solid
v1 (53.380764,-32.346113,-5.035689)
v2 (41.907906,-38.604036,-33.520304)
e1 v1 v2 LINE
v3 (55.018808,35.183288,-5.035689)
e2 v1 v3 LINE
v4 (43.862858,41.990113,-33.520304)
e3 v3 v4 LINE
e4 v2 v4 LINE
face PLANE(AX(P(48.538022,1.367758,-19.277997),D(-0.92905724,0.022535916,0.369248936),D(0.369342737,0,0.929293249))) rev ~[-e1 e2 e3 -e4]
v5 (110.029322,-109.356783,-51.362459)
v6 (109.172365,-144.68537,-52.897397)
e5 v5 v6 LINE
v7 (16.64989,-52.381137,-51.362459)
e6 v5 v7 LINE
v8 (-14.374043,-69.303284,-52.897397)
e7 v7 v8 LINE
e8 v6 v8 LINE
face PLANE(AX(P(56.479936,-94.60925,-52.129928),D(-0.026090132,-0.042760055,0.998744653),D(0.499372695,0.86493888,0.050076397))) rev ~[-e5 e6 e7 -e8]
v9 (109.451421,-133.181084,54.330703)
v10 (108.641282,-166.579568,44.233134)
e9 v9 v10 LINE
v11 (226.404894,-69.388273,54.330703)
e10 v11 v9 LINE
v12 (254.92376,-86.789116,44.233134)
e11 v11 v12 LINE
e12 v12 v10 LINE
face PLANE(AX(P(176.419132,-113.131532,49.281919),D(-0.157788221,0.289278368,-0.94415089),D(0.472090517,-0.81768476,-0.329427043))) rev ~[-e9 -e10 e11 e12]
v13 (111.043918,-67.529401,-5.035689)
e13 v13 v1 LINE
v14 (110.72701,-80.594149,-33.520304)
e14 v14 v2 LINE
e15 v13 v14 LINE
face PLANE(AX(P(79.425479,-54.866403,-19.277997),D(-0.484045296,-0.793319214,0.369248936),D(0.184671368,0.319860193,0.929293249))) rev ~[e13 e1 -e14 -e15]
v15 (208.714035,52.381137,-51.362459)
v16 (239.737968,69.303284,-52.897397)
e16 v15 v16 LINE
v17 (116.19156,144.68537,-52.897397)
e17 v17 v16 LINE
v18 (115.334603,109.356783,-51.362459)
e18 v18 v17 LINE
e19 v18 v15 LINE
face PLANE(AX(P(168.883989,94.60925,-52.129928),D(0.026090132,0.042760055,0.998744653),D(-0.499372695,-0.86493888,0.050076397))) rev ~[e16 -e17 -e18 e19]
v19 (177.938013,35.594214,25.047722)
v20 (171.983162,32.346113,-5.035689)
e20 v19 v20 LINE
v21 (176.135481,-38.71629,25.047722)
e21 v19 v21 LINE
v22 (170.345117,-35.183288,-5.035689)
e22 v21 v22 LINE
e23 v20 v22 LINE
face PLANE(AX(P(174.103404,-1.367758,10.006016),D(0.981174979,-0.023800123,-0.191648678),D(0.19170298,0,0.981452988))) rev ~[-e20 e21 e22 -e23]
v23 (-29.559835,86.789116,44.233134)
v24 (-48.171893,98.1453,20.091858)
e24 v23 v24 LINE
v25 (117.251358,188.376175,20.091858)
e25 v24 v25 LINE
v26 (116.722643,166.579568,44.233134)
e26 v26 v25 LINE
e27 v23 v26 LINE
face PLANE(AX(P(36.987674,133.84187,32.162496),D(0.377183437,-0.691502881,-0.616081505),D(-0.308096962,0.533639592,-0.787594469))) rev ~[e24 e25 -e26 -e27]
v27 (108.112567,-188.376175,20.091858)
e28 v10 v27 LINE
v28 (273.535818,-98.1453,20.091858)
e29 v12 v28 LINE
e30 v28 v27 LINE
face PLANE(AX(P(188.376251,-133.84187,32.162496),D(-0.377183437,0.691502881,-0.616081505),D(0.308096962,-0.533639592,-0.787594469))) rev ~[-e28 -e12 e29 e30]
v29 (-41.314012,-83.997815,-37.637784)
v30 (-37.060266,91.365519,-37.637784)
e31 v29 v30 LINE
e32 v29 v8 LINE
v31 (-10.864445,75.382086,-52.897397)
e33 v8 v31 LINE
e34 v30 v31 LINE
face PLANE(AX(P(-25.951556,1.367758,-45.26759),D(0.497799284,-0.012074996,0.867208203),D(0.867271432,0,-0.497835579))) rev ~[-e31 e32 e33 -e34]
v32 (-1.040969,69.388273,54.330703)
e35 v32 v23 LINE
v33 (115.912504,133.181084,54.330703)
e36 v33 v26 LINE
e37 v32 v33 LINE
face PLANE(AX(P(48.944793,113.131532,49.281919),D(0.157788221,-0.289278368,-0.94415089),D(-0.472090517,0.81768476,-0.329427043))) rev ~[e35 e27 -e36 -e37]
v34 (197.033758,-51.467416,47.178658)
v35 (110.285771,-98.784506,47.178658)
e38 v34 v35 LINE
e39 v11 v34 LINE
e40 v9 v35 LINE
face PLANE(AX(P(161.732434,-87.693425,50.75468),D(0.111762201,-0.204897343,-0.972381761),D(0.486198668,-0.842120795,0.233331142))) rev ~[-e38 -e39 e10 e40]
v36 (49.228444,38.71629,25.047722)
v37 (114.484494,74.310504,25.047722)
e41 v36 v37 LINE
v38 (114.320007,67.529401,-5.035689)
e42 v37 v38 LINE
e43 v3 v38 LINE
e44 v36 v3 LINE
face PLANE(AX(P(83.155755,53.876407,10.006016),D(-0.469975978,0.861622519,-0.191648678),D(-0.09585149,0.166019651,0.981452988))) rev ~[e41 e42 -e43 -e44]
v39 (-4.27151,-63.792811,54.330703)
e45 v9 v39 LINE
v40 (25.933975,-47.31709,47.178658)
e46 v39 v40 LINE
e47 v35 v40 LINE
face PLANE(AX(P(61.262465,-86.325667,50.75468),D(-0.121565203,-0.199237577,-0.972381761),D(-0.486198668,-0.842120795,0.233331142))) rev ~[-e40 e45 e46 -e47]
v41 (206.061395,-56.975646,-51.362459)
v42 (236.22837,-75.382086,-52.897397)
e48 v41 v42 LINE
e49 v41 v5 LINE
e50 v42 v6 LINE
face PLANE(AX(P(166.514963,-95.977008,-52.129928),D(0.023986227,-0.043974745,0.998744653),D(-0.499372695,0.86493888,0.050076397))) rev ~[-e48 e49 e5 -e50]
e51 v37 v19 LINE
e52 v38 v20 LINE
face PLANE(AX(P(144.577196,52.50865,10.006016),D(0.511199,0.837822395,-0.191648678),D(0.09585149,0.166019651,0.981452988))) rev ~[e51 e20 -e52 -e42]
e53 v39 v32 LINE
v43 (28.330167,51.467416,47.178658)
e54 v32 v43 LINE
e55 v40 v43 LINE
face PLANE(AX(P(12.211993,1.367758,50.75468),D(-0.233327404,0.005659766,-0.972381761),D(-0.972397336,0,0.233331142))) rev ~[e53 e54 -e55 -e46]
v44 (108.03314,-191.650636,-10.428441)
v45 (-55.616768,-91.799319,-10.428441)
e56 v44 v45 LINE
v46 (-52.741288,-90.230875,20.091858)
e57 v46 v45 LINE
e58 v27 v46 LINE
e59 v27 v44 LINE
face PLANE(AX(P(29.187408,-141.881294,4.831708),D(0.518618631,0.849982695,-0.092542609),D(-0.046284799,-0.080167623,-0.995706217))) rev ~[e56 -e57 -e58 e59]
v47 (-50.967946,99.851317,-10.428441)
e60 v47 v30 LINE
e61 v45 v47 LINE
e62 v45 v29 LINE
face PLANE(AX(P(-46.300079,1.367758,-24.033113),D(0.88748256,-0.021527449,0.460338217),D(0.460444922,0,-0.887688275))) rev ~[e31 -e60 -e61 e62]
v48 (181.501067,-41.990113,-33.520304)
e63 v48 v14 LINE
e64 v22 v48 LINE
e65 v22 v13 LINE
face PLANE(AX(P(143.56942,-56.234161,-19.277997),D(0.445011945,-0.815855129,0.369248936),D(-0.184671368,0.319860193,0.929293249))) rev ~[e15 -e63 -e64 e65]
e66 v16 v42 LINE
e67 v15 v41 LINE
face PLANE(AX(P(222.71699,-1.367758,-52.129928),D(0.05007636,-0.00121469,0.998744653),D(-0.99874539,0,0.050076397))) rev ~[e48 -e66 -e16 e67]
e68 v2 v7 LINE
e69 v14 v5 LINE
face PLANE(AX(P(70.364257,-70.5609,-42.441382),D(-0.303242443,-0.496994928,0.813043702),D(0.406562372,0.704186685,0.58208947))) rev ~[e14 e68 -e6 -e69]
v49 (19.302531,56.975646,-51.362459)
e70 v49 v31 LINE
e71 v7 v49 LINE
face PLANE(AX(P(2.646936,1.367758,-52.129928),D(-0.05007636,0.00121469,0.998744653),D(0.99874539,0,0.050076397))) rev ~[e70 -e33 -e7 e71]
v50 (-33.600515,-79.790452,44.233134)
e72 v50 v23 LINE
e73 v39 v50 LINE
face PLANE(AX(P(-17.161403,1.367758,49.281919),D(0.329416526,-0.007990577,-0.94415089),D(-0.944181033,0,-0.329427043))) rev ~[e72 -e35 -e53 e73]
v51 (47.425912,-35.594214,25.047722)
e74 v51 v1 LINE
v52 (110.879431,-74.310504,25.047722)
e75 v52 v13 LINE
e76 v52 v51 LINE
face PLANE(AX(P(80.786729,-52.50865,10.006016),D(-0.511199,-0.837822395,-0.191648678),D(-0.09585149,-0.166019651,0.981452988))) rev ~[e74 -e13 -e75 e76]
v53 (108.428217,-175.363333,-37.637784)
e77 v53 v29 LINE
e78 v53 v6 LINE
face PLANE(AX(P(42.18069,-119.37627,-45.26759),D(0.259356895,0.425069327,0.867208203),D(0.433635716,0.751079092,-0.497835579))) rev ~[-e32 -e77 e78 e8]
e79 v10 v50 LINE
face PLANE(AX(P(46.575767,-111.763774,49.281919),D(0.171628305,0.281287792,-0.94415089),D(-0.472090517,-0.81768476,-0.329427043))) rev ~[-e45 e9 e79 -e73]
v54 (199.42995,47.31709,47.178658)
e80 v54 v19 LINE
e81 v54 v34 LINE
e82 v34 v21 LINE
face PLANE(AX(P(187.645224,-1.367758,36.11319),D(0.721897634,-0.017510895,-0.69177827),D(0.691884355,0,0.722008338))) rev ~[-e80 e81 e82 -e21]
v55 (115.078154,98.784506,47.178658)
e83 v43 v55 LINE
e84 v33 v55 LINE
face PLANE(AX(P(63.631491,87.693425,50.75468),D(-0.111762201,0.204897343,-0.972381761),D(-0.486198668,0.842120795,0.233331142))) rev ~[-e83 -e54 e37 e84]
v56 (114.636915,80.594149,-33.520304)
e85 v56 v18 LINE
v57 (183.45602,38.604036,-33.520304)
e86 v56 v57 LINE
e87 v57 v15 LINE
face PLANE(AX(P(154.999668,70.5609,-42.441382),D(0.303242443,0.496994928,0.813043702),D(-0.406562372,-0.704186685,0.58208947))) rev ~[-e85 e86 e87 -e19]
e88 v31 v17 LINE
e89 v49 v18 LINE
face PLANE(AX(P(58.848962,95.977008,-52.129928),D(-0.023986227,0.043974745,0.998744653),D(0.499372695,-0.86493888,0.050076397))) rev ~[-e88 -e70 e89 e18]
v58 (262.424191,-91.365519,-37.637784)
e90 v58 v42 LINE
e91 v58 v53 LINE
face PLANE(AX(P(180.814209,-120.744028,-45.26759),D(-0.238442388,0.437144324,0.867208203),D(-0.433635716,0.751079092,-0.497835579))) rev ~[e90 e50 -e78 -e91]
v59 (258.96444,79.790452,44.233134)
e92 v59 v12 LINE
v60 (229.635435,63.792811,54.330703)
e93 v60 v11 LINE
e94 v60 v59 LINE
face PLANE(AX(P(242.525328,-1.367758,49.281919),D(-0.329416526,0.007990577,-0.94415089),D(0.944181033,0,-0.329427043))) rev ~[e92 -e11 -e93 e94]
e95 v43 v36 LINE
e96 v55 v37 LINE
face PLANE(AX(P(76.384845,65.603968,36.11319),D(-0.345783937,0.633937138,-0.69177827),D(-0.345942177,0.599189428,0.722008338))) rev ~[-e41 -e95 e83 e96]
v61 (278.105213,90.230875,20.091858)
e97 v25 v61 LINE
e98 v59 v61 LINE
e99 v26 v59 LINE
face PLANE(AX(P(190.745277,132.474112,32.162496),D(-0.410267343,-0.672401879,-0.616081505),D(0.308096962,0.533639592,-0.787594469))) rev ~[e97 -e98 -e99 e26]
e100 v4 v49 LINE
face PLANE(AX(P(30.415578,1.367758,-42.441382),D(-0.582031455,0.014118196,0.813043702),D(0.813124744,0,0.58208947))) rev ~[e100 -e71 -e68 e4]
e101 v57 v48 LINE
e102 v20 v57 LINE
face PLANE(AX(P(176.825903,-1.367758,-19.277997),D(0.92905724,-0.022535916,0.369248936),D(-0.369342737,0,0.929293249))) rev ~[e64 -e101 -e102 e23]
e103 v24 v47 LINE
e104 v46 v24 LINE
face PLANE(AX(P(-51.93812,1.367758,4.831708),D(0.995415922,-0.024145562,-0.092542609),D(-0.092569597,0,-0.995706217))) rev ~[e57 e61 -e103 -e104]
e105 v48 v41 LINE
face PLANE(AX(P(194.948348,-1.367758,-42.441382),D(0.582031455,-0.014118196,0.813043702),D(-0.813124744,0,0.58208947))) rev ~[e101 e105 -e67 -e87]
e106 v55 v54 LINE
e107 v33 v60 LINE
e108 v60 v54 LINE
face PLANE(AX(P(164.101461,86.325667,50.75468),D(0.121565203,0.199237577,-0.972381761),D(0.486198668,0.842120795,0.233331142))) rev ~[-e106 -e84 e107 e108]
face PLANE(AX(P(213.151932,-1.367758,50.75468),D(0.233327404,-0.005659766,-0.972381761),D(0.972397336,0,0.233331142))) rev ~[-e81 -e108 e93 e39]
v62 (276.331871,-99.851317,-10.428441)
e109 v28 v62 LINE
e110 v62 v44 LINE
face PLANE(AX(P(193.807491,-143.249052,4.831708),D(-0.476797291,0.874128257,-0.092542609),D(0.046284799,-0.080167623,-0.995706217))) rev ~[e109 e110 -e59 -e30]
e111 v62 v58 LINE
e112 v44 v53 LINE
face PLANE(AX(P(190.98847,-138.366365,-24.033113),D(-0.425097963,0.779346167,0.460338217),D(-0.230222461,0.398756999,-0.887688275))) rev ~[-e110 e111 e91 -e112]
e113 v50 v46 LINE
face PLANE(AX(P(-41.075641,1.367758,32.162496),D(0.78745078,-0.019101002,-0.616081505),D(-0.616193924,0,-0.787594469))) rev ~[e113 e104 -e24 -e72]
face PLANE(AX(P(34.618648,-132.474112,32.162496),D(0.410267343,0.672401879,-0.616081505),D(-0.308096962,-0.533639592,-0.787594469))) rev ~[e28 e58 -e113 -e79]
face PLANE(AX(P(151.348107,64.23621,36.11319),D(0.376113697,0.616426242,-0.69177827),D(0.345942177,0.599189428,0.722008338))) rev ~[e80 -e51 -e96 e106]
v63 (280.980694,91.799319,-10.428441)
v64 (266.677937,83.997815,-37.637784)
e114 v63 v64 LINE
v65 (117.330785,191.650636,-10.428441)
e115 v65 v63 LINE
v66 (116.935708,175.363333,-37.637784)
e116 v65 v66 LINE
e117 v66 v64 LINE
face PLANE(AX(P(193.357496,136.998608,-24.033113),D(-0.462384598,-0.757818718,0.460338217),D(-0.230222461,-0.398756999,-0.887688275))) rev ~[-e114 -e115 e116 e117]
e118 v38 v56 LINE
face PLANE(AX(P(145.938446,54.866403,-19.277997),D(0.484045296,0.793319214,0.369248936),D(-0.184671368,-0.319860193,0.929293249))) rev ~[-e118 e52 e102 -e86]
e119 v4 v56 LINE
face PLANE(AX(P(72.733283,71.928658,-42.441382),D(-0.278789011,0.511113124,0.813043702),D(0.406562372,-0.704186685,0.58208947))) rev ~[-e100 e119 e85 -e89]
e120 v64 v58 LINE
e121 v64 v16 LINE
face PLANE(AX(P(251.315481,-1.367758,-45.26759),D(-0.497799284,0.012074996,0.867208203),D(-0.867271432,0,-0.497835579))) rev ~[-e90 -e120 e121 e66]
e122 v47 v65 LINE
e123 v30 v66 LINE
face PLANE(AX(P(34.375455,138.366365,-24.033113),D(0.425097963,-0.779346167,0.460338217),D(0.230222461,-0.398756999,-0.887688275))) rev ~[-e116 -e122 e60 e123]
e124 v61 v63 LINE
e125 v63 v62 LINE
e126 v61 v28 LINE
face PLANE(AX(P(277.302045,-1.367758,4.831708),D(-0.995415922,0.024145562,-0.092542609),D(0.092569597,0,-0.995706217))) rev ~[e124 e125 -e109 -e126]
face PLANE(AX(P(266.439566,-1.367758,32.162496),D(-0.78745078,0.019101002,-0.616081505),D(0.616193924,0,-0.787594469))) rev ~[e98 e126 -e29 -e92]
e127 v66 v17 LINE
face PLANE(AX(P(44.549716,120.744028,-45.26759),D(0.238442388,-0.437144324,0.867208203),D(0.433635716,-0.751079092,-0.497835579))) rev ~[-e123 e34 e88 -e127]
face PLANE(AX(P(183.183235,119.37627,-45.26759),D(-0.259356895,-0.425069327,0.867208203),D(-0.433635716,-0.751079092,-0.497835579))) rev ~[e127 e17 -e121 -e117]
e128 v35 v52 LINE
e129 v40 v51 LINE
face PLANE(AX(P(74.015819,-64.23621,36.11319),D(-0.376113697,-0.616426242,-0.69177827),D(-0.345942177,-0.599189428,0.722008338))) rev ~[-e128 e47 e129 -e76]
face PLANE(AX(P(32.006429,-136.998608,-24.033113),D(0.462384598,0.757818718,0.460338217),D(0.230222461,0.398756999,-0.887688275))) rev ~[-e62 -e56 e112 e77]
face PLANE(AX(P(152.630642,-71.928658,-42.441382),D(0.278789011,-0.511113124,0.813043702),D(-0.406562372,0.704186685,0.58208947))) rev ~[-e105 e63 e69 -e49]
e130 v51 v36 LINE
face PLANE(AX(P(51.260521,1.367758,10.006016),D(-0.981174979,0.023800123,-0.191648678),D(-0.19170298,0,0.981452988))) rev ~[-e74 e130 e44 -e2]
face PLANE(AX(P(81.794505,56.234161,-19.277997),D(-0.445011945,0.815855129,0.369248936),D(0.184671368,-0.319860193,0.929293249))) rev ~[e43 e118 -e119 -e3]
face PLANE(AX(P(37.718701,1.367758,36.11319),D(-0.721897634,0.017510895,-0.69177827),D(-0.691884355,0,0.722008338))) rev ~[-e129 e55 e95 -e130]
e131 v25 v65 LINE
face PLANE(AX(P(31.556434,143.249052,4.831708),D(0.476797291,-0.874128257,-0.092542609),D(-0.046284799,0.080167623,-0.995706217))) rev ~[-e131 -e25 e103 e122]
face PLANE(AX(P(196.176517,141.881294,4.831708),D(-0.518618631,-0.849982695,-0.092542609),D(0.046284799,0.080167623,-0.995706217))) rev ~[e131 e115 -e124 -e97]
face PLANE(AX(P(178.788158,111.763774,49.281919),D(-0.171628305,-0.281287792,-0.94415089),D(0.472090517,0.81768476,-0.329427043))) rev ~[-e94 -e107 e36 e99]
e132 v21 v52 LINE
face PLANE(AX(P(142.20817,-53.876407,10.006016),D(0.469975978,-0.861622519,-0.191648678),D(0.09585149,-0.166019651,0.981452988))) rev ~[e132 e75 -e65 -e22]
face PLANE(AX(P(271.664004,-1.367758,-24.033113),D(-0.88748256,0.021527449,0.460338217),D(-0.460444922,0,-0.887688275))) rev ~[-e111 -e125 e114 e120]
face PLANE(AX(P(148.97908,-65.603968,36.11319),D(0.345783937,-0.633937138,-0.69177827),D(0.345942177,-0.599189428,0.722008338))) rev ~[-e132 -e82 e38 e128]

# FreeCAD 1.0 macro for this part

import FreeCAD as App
import Part
import Sketcher
from FreeCAD import Vector
Q = App.Units.Quantity


def add_polygon(sketch, points):
    """Adds a closed chain of lines whose ends are joined by coincident constraints."""
    first, n = sketch.GeometryCount, len(points)
    for a, b in zip(points, points[1:] + points[:1]):
        sketch.addGeometry(Part.LineSegment(App.Vector(*a, 0), App.Vector(*b, 0)), False)
    for i in range(n):
        sketch.addConstraint(Sketcher.Constraint("Coincident", first + i, 2, first + (i + 1) % n, 1))

doc = App.newDocument("Part")
body = doc.addObject("PartDesign::Body", "Body")

sketch1 = body.newObject("Sketcher::SketchObject", "Sketch")
sketch1.AttachmentSupport = (doc.getObject("XZ_Plane"), [""])
sketch1.MapMode = "FlatFace"
add_polygon(sketch1, [(-12.69297, -52.897397), (17.920486, -51.362459), (42.844314, -33.520304), (54.165375, -5.035689), (48.289313, 25.047722), (27.081734, 47.178658), (-2.724104, 54.330703), (-31.665058, 44.233134), (-50.55258, 20.091858), (-53.390015, -10.428441), (-39.276497, -37.637784)])
sketch1.addConstraint([
    Sketcher.Constraint("DistanceX", 1, 2, 3, 2, Q("5.444998 mm")),
    Sketcher.Constraint("DistanceY", 7, 2, 4, 2, Q("27.0868 mm")),
    Sketcher.Constraint("DistanceY", 8, 2, 7, 2, Q("30.520299 mm")),
    Sketcher.Constraint("DistanceX", 8, 2, 0, 2, Q("71.310501 mm")),
    Sketcher.Constraint("DistanceY", 0, 2, -1, 1, Q("51.362459 mm")),
    Sketcher.Constraint("DistanceY", 2, 2, -1, 1, Q("5.035689 mm")),
    Sketcher.Constraint("DistanceY", -1, 1, 3, 2, Q("25.047722 mm")),
    Sketcher.Constraint("DistanceX", 7, 2, -1, 1, Q("50.55258 mm")),
    Sketcher.Constraint("DistanceY", -1, 1, 7, 2, Q("20.091858 mm")),
    Sketcher.Constraint("DistanceX", 10, 2, -1, 1, Q("12.69297 mm")),
    Sketcher.Constraint("DistanceX", 0, 2, 1, 2, Q("24.923828 mm")),
    Sketcher.Constraint("DistanceX", 1, 2, 2, 2, Q("11.321061 mm")),
    Sketcher.Constraint("DistanceX", 4, 2, 3, 2, Q("21.207578 mm")),
    Sketcher.Constraint("DistanceY", 1, 2, 4, 2, Q("80.698962 mm")),
    Sketcher.Constraint("DistanceY", 3, 2, 5, 2, Q("29.282982 mm")),
    Sketcher.Constraint("DistanceX", 5, 2, 2, 2, Q("56.889479 mm")),
    Sketcher.Constraint("DistanceY", 6, 2, 5, 2, Q("10.097569 mm")),
    Sketcher.Constraint("DistanceX", 6, 2, 4, 2, Q("58.746792 mm")),
    Sketcher.Constraint("DistanceX", 7, 2, 6, 2, Q("18.887522 mm")),
    Sketcher.Constraint("DistanceX", 9, 2, 1, 2, Q("82.120812 mm")),
    Sketcher.Constraint("DistanceY", 9, 2, 1, 2, Q("4.11748 mm")),
    Sketcher.Constraint("Distance", 0, Q("30.651912 mm")),
])

sketch2 = body.newObject("Sketcher::SketchObject", "Sketch001")
sketch2.AttachmentSupport = (doc.getObject("XY_Plane"), [""])
sketch2.MapMode = "FlatFace"
add_polygon(sketch2, [(111.102612, -65.109723), (55.505613, -31.187104), (57.084964, 33.922619), (114.261313, 65.109723), (169.858312, 31.187104), (168.278961, -33.922619)])
sketch2.addConstraint([
    Sketcher.Constraint("Parallel", 0, 3),
    Sketcher.Constraint("Parallel", 1, 4),
    Sketcher.Constraint("Parallel", 2, 5),
    Sketcher.Constraint("Equal", 0, 1),
    Sketcher.Constraint("Equal", 1, 2),
    Sketcher.Constraint("Equal", 2, 3),
    Sketcher.Constraint("DistanceX", 2, 2, 3, 2, Q("55.596999 mm")),
    Sketcher.Constraint("DistanceX", 0, 2, 2, 2, Q("58.7557 mm")),
    Sketcher.Constraint("DistanceY", -1, 1, 1, 2, Q("33.922619 mm")),
    Sketcher.Constraint("DistanceX", -1, 1, 4, 2, Q("168.278961 mm")),
    Sketcher.Constraint("DistanceY", 4, 2, -1, 1, Q("33.922619 mm")),
    Sketcher.Constraint("DistanceX", -1, 1, 5, 2, Q("111.102612 mm")),
])
doc.recompute()

additivepipe = body.newObject("PartDesign::AdditivePipe", "AdditivePipe")
additivepipe.Profile = sketch1
additivepipe.Spine = (sketch2, ["Edge1", "Edge2", "Edge3", "Edge4", "Edge5", "Edge6"])
additivepipe.Transition = "Right corner"

doc.recompute()
